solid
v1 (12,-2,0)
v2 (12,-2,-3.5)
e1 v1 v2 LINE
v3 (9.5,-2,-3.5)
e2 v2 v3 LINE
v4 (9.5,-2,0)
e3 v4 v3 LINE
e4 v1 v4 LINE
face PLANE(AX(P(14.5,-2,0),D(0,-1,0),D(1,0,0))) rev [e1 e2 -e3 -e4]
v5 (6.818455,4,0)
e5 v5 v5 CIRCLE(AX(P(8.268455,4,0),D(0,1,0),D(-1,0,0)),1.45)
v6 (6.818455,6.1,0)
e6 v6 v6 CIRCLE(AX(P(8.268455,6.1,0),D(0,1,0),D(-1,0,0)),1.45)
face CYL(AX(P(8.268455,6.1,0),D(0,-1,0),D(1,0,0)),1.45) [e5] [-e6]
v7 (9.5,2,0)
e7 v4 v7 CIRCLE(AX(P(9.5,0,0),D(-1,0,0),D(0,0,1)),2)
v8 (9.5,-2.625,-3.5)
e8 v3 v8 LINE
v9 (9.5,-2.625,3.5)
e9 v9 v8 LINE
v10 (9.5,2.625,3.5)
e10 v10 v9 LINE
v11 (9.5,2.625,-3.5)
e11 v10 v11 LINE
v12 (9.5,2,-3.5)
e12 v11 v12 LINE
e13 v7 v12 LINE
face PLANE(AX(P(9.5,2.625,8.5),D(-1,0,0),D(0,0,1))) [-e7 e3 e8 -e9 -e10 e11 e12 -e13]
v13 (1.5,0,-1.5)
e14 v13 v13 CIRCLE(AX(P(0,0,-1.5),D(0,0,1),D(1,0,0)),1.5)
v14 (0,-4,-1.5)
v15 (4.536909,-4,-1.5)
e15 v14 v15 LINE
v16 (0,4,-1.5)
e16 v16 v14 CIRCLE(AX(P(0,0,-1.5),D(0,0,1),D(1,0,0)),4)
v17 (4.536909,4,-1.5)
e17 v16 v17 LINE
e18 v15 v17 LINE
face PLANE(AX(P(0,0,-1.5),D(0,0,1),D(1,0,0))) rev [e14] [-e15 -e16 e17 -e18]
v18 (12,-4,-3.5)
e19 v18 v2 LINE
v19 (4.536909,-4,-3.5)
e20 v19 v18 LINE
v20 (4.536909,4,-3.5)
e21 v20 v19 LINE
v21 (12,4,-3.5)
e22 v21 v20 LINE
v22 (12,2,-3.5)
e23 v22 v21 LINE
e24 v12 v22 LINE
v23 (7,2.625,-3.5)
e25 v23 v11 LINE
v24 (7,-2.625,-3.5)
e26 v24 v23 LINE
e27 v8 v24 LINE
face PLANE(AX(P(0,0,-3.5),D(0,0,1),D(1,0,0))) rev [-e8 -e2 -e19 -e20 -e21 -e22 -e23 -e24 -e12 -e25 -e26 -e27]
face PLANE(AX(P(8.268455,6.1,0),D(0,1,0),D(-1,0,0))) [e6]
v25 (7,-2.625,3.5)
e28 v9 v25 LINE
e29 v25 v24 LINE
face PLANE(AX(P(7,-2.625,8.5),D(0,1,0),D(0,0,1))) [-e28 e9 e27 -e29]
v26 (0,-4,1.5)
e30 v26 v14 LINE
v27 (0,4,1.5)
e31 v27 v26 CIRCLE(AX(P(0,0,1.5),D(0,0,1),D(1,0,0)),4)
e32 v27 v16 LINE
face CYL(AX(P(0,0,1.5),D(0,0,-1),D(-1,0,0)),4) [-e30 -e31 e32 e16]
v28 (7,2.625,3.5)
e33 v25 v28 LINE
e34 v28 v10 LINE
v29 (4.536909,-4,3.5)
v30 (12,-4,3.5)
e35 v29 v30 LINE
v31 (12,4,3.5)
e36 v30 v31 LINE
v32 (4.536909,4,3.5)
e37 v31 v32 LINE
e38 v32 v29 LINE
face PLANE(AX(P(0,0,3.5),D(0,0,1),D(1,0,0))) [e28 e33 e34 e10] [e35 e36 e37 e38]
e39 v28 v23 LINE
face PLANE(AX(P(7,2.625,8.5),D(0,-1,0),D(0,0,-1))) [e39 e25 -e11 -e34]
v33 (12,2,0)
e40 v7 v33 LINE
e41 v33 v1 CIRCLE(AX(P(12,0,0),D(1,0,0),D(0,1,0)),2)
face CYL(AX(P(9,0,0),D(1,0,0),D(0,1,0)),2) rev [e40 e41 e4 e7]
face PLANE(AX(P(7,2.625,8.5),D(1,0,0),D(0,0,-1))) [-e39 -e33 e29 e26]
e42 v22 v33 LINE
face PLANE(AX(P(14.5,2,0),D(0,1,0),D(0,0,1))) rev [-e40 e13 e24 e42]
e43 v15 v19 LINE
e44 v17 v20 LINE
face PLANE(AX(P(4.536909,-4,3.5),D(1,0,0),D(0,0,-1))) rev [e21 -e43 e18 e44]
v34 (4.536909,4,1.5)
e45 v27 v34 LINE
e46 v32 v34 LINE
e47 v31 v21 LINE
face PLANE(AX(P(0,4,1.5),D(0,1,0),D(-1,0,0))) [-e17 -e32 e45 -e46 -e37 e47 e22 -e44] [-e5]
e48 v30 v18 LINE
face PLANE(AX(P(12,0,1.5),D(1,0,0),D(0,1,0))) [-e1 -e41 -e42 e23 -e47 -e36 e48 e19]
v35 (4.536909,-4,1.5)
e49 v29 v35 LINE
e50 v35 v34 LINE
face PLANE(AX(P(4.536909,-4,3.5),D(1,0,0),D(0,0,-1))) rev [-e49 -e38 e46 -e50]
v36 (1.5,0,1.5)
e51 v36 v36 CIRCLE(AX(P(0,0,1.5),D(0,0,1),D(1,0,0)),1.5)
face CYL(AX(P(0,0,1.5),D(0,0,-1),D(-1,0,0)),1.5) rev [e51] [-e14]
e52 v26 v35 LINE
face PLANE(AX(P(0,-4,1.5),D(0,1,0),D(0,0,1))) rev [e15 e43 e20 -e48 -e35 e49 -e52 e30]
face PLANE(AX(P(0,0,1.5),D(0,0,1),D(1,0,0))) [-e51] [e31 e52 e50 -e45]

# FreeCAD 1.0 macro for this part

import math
import FreeCAD as App
import Part
import Sketcher

V = App.Vector

doc = App.newDocument("Part")
body = doc.addObject("PartDesign::Body", "Body")

# Sketch on XY plane
sketch1 = body.newObject("Sketcher::SketchObject", "Sketch")
sketch1.AttachmentSupport = (doc.getObject("XY_Plane"), [""])
sketch1.MapMode = "FlatFace"
sketch1.addGeometry(Part.LineSegment(V(12, 4, 0), V(0, 4, 0)), False)
sketch1.addGeometry(Part.ArcOfCircle(Part.Circle(V(0, 0, 0), V(0, 0, 1), 4), math.radians(90), math.radians(270)), False)
sketch1.addGeometry(Part.LineSegment(V(0, -4, 0), V(12, -4, 0)), False)
sketch1.addGeometry(Part.LineSegment(V(12, -4, 0), V(12, 4, 0)), False)
sketch1.addGeometry(Part.Circle(V(0, 0, 0), V(0, 0, 1), 1.5), False)
sketch1.addConstraint(Sketcher.Constraint("Tangent", 0, 2, 1, 1))
sketch1.addConstraint(Sketcher.Constraint("Tangent", 1, 2, 2, 1))
sketch1.addConstraint(Sketcher.Constraint("Coincident", 2, 2, 3, 1))
sketch1.addConstraint(Sketcher.Constraint("Coincident", 3, 2, 0, 1))
sketch1.addConstraint(Sketcher.Constraint("Horizontal", 0))
sketch1.addConstraint(Sketcher.Constraint("Horizontal", 2))
sketch1.addConstraint(Sketcher.Constraint("Vertical", 3))
sketch1.addConstraint(Sketcher.Constraint("Coincident", 1, 3, -1, 1))
sketch1.addConstraint(Sketcher.Constraint("Coincident", 4, 3, -1, 1))
sketch1.addConstraint(Sketcher.Constraint("Diameter", 4, 3.0))
sketch1.addConstraint(Sketcher.Constraint("Radius", 1, 4.0))
sketch1.addConstraint(Sketcher.Constraint("DistanceX", 0, 2, 0, 1, 12.0))
pad1 = body.newObject("PartDesign::Pad", "Pad")
pad1.Profile = sketch1
pad1.Length = 3
pad1.Midplane = True

# Sketch on XY plane
sketch2 = body.newObject("Sketcher::SketchObject", "Sketch001")
sketch2.AttachmentSupport = (doc.getObject("XY_Plane"), [""])
sketch2.MapMode = "FlatFace"
sketch2.addGeometry(Part.LineSegment(V(5, 4, 0), V(5, -4, 0)), False)
sketch2.addGeometry(Part.LineSegment(V(5, -4, 0), V(12, -4, 0)), False)
sketch2.addGeometry(Part.LineSegment(V(12, -4, 0), V(12, 4, 0)), False)
sketch2.addGeometry(Part.LineSegment(V(12, 4, 0), V(5, 4, 0)), False)
sketch2.addConstraint(Sketcher.Constraint("Coincident", 0, 2, 1, 1))
sketch2.addConstraint(Sketcher.Constraint("Coincident", 1, 2, 2, 1))
sketch2.addConstraint(Sketcher.Constraint("Coincident", 2, 2, 3, 1))
sketch2.addConstraint(Sketcher.Constraint("Coincident", 3, 2, 0, 1))
sketch2.addConstraint(Sketcher.Constraint("Vertical", 0))
sketch2.addConstraint(Sketcher.Constraint("Horizontal", 1))
sketch2.addConstraint(Sketcher.Constraint("Vertical", 2))
sketch2.addConstraint(Sketcher.Constraint("Horizontal", 3))
sketch2.addConstraint(Sketcher.Constraint("DistanceY", 0, 2, 0, 1, 8.0))
sketch2.addConstraint(Sketcher.Constraint("DistanceY", 0, 2, -1, 1, 4.0))
sketch2.addConstraint(Sketcher.Constraint("DistanceX", -1, 1, 1, 2, 12.0))
sketch2.addConstraint(Sketcher.Constraint("DistanceX", 1, 1, 1, 2, 7.463091))
pad2 = body.newObject("PartDesign::Pad", "Pad001")
pad2.Profile = sketch2
pad2.Length = 7
pad2.Midplane = True

# Sketch on XY plane
sketch3 = body.newObject("Sketcher::SketchObject", "Sketch002")
sketch3.AttachmentSupport = (doc.getObject("XY_Plane"), [""])
sketch3.MapMode = "FlatFace"
sketch3.AttachmentOffset = App.Placement(V(0, 0, 1.5), App.Rotation())
sketch3.addGeometry(Part.LineSegment(V(7, 2.6, 0), V(7, -2.6, 0)), False)
sketch3.addGeometry(Part.LineSegment(V(7, -2.6, 0), V(9.5, -2.6, 0)), False)
sketch3.addGeometry(Part.LineSegment(V(9.5, -2.6, 0), V(9.5, 2.6, 0)), False)
sketch3.addGeometry(Part.LineSegment(V(9.5, 2.6, 0), V(7, 2.6, 0)), False)
sketch3.addConstraint(Sketcher.Constraint("Coincident", 0, 2, 1, 1))
sketch3.addConstraint(Sketcher.Constraint("Coincident", 1, 2, 2, 1))
sketch3.addConstraint(Sketcher.Constraint("Coincident", 2, 2, 3, 1))
sketch3.addConstraint(Sketcher.Constraint("Coincident", 3, 2, 0, 1))
sketch3.addConstraint(Sketcher.Constraint("Vertical", 0))
sketch3.addConstraint(Sketcher.Constraint("Horizontal", 1))
sketch3.addConstraint(Sketcher.Constraint("Vertical", 2))
sketch3.addConstraint(Sketcher.Constraint("Horizontal", 3))
sketch3.addConstraint(Sketcher.Constraint("DistanceX", 1, 1, 1, 2, 2.5))
sketch3.addConstraint(Sketcher.Constraint("DistanceX", -1, 1, 0, 2, 7.0))
sketch3.addConstraint(Sketcher.Constraint("DistanceY", 0, 2, 0, 1, 5.25))
sketch3.addConstraint(Sketcher.Constraint("DistanceY", 0, 2, -1, 1, 2.625))
pocket1 = body.newObject("PartDesign::Pocket", "Pocket")
pocket1.Profile = sketch3
pocket1.Type = "ThroughAll"
pocket1.Midplane = True

# Sketch on YZ plane
sketch4 = body.newObject("Sketcher::SketchObject", "Sketch003")
sketch4.AttachmentSupport = (doc.getObject("YZ_Plane"), [""])
sketch4.MapMode = "FlatFace"
sketch4.AttachmentOffset = App.Placement(V(0, 0, 12), App.Rotation())
sketch4.addGeometry(Part.Circle(V(0, 0, 0), V(0, 0, 1), 2), False)
sketch4.addConstraint(Sketcher.Constraint("Coincident", 0, 3, -1, 1))
sketch4.addConstraint(Sketcher.Constraint("Diameter", 0, 4.0))
pocket2 = body.newObject("PartDesign::Pocket", "Pocket001")
pocket2.Profile = sketch4
pocket2.Length = 3

# Sketch on XY plane
sketch5 = body.newObject("Sketcher::SketchObject", "Sketch004")
sketch5.AttachmentSupport = (doc.getObject("XY_Plane"), [""])
sketch5.MapMode = "FlatFace"
sketch5.AttachmentOffset = App.Placement(V(0, 0, -3.5), App.Rotation())
sketch5.addGeometry(Part.LineSegment(V(14.5, 2, 0), V(14.5, -2, 0)), False)
sketch5.addGeometry(Part.LineSegment(V(14.5, -2, 0), V(9.5, -2, 0)), False)
sketch5.addGeometry(Part.LineSegment(V(9.5, -2, 0), V(9.5, 2, 0)), False)
sketch5.addGeometry(Part.LineSegment(V(9.5, 2, 0), V(14.5, 2, 0)), False)
sketch5.addConstraint(Sketcher.Constraint("Coincident", 0, 2, 1, 1))
sketch5.addConstraint(Sketcher.Constraint("Coincident", 1, 2, 2, 1))
sketch5.addConstraint(Sketcher.Constraint("Coincident", 2, 2, 3, 1))
sketch5.addConstraint(Sketcher.Constraint("Coincident", 3, 2, 0, 1))
sketch5.addConstraint(Sketcher.Constraint("Vertical", 0))
sketch5.addConstraint(Sketcher.Constraint("Horizontal", 1))
sketch5.addConstraint(Sketcher.Constraint("Vertical", 2))
sketch5.addConstraint(Sketcher.Constraint("Horizontal", 3))
sketch5.addConstraint(Sketcher.Constraint("DistanceX", 1, 2, 1, 1, 5.0))
sketch5.addConstraint(Sketcher.Constraint("DistanceY", 0, 2, 0, 1, 4.0))
sketch5.addConstraint(Sketcher.Constraint("DistanceY", 0, 2, -1, 1, 2.0))
sketch5.addConstraint(Sketcher.Constraint("DistanceX", -1, 1, 0, 2, 14.5))
pocket3 = body.newObject("PartDesign::Pocket", "Pocket002")
pocket3.Profile = sketch5
pocket3.Length = 3.5
pocket3.Reversed = True

# Sketch on XZ plane
sketch6 = body.newObject("Sketcher::SketchObject", "Sketch005")
sketch6.AttachmentSupport = (doc.getObject("XZ_Plane"), [""])
sketch6.MapMode = "FlatFace"
sketch6.AttachmentOffset = App.Placement(V(0, 0, -4), App.Rotation())
sketch6.addGeometry(Part.Circle(V(8.3, 0, 0), V(0, 0, 1), 1.4), False)
sketch6.addConstraint(Sketcher.Constraint("PointOnObject", 0, 3, -1))
sketch6.addConstraint(Sketcher.Constraint("Diameter", 0, 2.9))
sketch6.addConstraint(Sketcher.Constraint("DistanceX", -1, 1, 0, 3, 8.268455))
pad3 = body.newObject("PartDesign::Pad", "Pad002")
pad3.Profile = sketch6
pad3.Length = 2.1
pad3.Reversed = True

doc.recompute()
